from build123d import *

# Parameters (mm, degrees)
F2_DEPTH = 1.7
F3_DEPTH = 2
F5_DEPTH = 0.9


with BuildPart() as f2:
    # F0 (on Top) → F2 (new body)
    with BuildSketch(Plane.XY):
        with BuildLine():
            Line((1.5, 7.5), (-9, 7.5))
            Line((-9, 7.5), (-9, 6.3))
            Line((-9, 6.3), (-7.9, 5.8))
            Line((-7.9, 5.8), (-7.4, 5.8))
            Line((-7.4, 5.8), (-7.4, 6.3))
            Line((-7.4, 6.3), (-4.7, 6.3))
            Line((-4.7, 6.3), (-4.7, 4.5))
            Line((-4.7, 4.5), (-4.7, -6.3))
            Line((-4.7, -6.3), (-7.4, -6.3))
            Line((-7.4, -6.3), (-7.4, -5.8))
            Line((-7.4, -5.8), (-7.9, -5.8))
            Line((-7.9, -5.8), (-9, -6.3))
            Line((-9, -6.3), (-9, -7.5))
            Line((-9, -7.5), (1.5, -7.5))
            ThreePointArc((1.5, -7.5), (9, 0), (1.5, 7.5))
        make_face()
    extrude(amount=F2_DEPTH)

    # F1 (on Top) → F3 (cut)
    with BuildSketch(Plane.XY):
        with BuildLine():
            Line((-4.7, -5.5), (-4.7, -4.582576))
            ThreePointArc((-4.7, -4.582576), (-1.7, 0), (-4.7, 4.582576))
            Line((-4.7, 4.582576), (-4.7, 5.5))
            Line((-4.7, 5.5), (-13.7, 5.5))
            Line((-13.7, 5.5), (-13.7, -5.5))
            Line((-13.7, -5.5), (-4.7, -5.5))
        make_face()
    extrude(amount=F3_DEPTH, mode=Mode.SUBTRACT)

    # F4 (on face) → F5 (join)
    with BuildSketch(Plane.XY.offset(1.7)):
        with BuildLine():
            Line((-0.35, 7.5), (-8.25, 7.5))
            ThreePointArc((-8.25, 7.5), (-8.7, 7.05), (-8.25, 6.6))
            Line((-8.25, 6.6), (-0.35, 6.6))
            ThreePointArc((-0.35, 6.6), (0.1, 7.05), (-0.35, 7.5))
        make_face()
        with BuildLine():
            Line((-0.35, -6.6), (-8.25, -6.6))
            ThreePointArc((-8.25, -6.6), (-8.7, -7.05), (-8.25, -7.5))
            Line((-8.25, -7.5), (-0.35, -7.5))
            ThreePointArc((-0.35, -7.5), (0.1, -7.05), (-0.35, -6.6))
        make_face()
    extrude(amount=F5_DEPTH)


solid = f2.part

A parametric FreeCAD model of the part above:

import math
import FreeCAD as App
import Part
import Sketcher

V = App.Vector
Q = App.Units.Quantity

doc = App.newDocument("Part")
body = doc.addObject("PartDesign::Body", "Body")

sketch1 = body.newObject("Sketcher::SketchObject", "Sketch")
sketch1.AttachmentSupport = (doc.getObject("XY_Plane"), [""])
sketch1.MapMode = "FlatFace"
sketch1.addGeometry(Part.LineSegment(V(1.5, 7.5, 0), V(-9, 7.5, 0)), False)
sketch1.addGeometry(Part.LineSegment(V(-9, 7.5, 0), V(-9, 6.3, 0)), False)
sketch1.addGeometry(Part.LineSegment(V(-9, 6.3, 0), V(-7.9, 5.8, 0)), False)
sketch1.addGeometry(Part.LineSegment(V(-7.9, 5.8, 0), V(-7.4, 5.8, 0)), False)
sketch1.addGeometry(Part.LineSegment(V(-7.4, 5.8, 0), V(-7.4, 6.3, 0)), False)
sketch1.addGeometry(Part.LineSegment(V(-7.4, 6.3, 0), V(-4.7, 6.3, 0)), False)
sketch1.addGeometry(Part.LineSegment(V(-4.7, 6.3, 0), V(-4.7, -6.3, 0)), False)
sketch1.addGeometry(Part.LineSegment(V(-4.7, -6.3, 0), V(-7.4, -6.3, 0)), False)
sketch1.addGeometry(Part.LineSegment(V(-7.4, -6.3, 0), V(-7.4, -5.8, 0)), False)
sketch1.addGeometry(Part.LineSegment(V(-7.4, -5.8, 0), V(-7.9, -5.8, 0)), False)
sketch1.addGeometry(Part.LineSegment(V(-7.9, -5.8, 0), V(-9, -6.3, 0)), False)
sketch1.addGeometry(Part.LineSegment(V(-9, -6.3, 0), V(-9, -7.5, 0)), False)
sketch1.addGeometry(Part.LineSegment(V(-9, -7.5, 0), V(1.5, -7.5, 0)), False)
sketch1.addGeometry(Part.ArcOfCircle(Part.Circle(V(1.5, 0, 0), V(0, 0, 1), 7.5), math.radians(-90), math.radians(90)), False)
sketch1.addConstraint(Sketcher.Constraint("Coincident", 0, 2, 1, 1))
sketch1.addConstraint(Sketcher.Constraint("Coincident", 1, 2, 2, 1))
sketch1.addConstraint(Sketcher.Constraint("Coincident", 2, 2, 3, 1))
sketch1.addConstraint(Sketcher.Constraint("Coincident", 3, 2, 4, 1))
sketch1.addConstraint(Sketcher.Constraint("Coincident", 4, 2, 5, 1))
sketch1.addConstraint(Sketcher.Constraint("Coincident", 5, 2, 6, 1))
sketch1.addConstraint(Sketcher.Constraint("Coincident", 6, 2, 7, 1))
sketch1.addConstraint(Sketcher.Constraint("Coincident", 7, 2, 8, 1))
sketch1.addConstraint(Sketcher.Constraint("Coincident", 8, 2, 9, 1))
sketch1.addConstraint(Sketcher.Constraint("Coincident", 9, 2, 10, 1))
sketch1.addConstraint(Sketcher.Constraint("Coincident", 10, 2, 11, 1))
sketch1.addConstraint(Sketcher.Constraint("Coincident", 11, 2, 12, 1))
sketch1.addConstraint(Sketcher.Constraint("Tangent", 12, 2, 13, 1))
sketch1.addConstraint(Sketcher.Constraint("Tangent", 13, 2, 0, 1))
sketch1.addConstraint(Sketcher.Constraint("Horizontal", 0))
sketch1.addConstraint(Sketcher.Constraint("Vertical", 1))
sketch1.addConstraint(Sketcher.Constraint("Horizontal", 3))
sketch1.addConstraint(Sketcher.Constraint("Vertical", 4))
sketch1.addConstraint(Sketcher.Constraint("Horizontal", 5))
sketch1.addConstraint(Sketcher.Constraint("Vertical", 6))
sketch1.addConstraint(Sketcher.Constraint("Horizontal", 7))
sketch1.addConstraint(Sketcher.Constraint("Vertical", 8))
sketch1.addConstraint(Sketcher.Constraint("Horizontal", 9))
sketch1.addConstraint(Sketcher.Constraint("Vertical", 11))
sketch1.addConstraint(Sketcher.Constraint("Horizontal", 12))
sketch1.addConstraint(Sketcher.Constraint("Symmetric", 4, 2, 7, 2, -1))
sketch1.addConstraint(Sketcher.Constraint("Symmetric", 2, 2, 9, 2, -1))
sketch1.addConstraint(Sketcher.Constraint("Symmetric", 1, 2, 10, 2, -1))
sketch1.addConstraint(Sketcher.Constraint("PointOnObject", 13, 3, -1))
sketch1.addConstraint(Sketcher.Constraint("Horizontal", 1, 2, 4, 2))
sketch1.addConstraint(Sketcher.Constraint("Equal", 9, 4))
sketch1.addConstraint(Sketcher.Constraint("Radius", 13, Q("7.5 mm")))
sketch1.addConstraint(Sketcher.Constraint("DistanceX", 0, 2, 0, 1, Q("10.5 mm")))
sketch1.addConstraint(Sketcher.Constraint("DistanceX", 3, 1, 3, 2, Q("0.5 mm")))
sketch1.addConstraint(Sketcher.Constraint("DistanceX", 5, 1, 5, 2, Q("2.7 mm")))
sketch1.addConstraint(Sketcher.Constraint("DistanceY", 1, 2, 1, 1, Q("1.2 mm")))
sketch1.addConstraint(Sketcher.Constraint("DistanceX", 0, 2, -1, 1, Q("9 mm")))
sketch1.addConstraint(Sketcher.Constraint("DistanceX", 2, 2, -1, 1, Q("7.9 mm")))
pad1 = body.newObject("PartDesign::Pad", "Pad")
pad1.Profile = sketch1
pad1.Length = 1.7

sketch2 = body.newObject("Sketcher::SketchObject", "Sketch001")
sketch2.AttachmentSupport = (doc.getObject("XY_Plane"), [""])
sketch2.MapMode = "FlatFace"
sketch2.addGeometry(Part.LineSegment(V(-4.7, -5.5, 0), V(-4.7, -4.582576, 0)), False)
sketch2.addGeometry(Part.ArcOfCircle(Part.Circle(V(-6.7, 0, 0), V(0, 0, 1), 5), math.radians(-66.421818), math.radians(66.421818)), False)
sketch2.addGeometry(Part.LineSegment(V(-4.7, 4.582576, 0), V(-4.7, 5.5, 0)), False)
sketch2.addGeometry(Part.LineSegment(V(-4.7, 5.5, 0), V(-13.7, 5.5, 0)), False)
sketch2.addGeometry(Part.LineSegment(V(-13.7, 5.5, 0), V(-13.7, -5.5, 0)), False)
sketch2.addGeometry(Part.LineSegment(V(-13.7, -5.5, 0), V(-4.7, -5.5, 0)), False)
sketch2.addConstraint(Sketcher.Constraint("Coincident", 0, 2, 1, 1))
sketch2.addConstraint(Sketcher.Constraint("Coincident", 1, 2, 2, 1))
sketch2.addConstraint(Sketcher.Constraint("Coincident", 2, 2, 3, 1))
sketch2.addConstraint(Sketcher.Constraint("Coincident", 3, 2, 4, 1))
sketch2.addConstraint(Sketcher.Constraint("Coincident", 4, 2, 5, 1))
sketch2.addConstraint(Sketcher.Constraint("Coincident", 5, 2, 0, 1))
sketch2.addConstraint(Sketcher.Constraint("Vertical", 0))
sketch2.addConstraint(Sketcher.Constraint("Vertical", 2))
sketch2.addConstraint(Sketcher.Constraint("Horizontal", 3))
sketch2.addConstraint(Sketcher.Constraint("Vertical", 4))
sketch2.addConstraint(Sketcher.Constraint("Horizontal", 5))
sketch2.addConstraint(Sketcher.Constraint("Symmetric", 0, 2, 1, 2, -1))
sketch2.addConstraint(Sketcher.Constraint("Equal", 0, 2))
sketch2.addConstraint(Sketcher.Constraint("Radius", 1, Q("5 mm")))
sketch2.addConstraint(Sketcher.Constraint("DistanceX", 3, 2, 3, 1, Q("9 mm")))
sketch2.addConstraint(Sketcher.Constraint("DistanceY", 4, 2, 4, 1, Q("11 mm")))
sketch2.addConstraint(Sketcher.Constraint("DistanceX", 1, 3, 0, 2, Q("2 mm")))
sketch2.addConstraint(Sketcher.Constraint("DistanceX", 1, 3, -1, 1, Q("6.7 mm")))
pocket1 = body.newObject("PartDesign::Pocket", "Pocket")
pocket1.Profile = sketch2
pocket1.Length = 2
pocket1.Reversed = True

sketch3 = body.newObject("Sketcher::SketchObject", "Sketch002")
sketch3.AttachmentSupport = (doc.getObject("XY_Plane"), [""])
sketch3.MapMode = "FlatFace"
sketch3.AttachmentOffset = App.Placement(V(0, 0, 1.7), App.Rotation())
sketch3.addGeometry(Part.LineSegment(V(-0.35, 7.5, 0), V(-8.25, 7.5, 0)), False)
sketch3.addGeometry(Part.ArcOfCircle(Part.Circle(V(-8.25, 7.05, 0), V(0, 0, 1), 0.45), math.radians(90), math.radians(270)), False)
sketch3.addGeometry(Part.LineSegment(V(-8.25, 6.6, 0), V(-0.35, 6.6, 0)), False)
sketch3.addGeometry(Part.ArcOfCircle(Part.Circle(V(-0.35, 7.05, 0), V(0, 0, 1), 0.45), math.radians(-90), math.radians(90)), False)
sketch3.addGeometry(Part.LineSegment(V(-0.35, -6.6, 0), V(-8.25, -6.6, 0)), False)
sketch3.addGeometry(Part.ArcOfCircle(Part.Circle(V(-8.25, -7.05, 0), V(0, 0, 1), 0.45), math.radians(90), math.radians(270)), False)
sketch3.addGeometry(Part.LineSegment(V(-8.25, -7.5, 0), V(-0.35, -7.5, 0)), False)
sketch3.addGeometry(Part.ArcOfCircle(Part.Circle(V(-0.35, -7.05, 0), V(0, 0, 1), 0.45), math.radians(-90), math.radians(90)), False)
sketch3.addConstraint(Sketcher.Constraint("Tangent", 0, 2, 1, 1))
sketch3.addConstraint(Sketcher.Constraint("Tangent", 1, 2, 2, 1))
sketch3.addConstraint(Sketcher.Constraint("Tangent", 2, 2, 3, 1))
sketch3.addConstraint(Sketcher.Constraint("Tangent", 3, 2, 0, 1))
sketch3.addConstraint(Sketcher.Constraint("Tangent", 4, 2, 5, 1))
sketch3.addConstraint(Sketcher.Constraint("Tangent", 5, 2, 6, 1))
sketch3.addConstraint(Sketcher.Constraint("Tangent", 6, 2, 7, 1))
sketch3.addConstraint(Sketcher.Constraint("Tangent", 7, 2, 4, 1))
sketch3.addConstraint(Sketcher.Constraint("Horizontal", 0))
sketch3.addConstraint(Sketcher.Constraint("Horizontal", 2))
sketch3.addConstraint(Sketcher.Constraint("Horizontal", 4))
sketch3.addConstraint(Sketcher.Constraint("Horizontal", 6))
sketch3.addConstraint(Sketcher.Constraint("Equal", 3, 5))
sketch3.addConstraint(Sketcher.Constraint("Symmetric", 1, 3, 5, 3, -1))
sketch3.addConstraint(Sketcher.Constraint("Vertical", 3, 3, 7, 3))
sketch3.addConstraint(Sketcher.Constraint("Radius", 1, Q("0.45 mm")))
sketch3.addConstraint(Sketcher.Constraint("DistanceX", 0, 2, 0, 1, Q("7.9 mm")))
sketch3.addConstraint(Sketcher.Constraint("DistanceY", -1, 1, 0, 2, Q("7.5 mm")))
sketch3.addConstraint(Sketcher.Constraint("DistanceX", 1, 3, -1, 1, Q("8.25 mm")))
pad2 = body.newObject("PartDesign::Pad", "Pad001")
pad2.Profile = sketch3
pad2.Length = 0.9

doc.recompute()
